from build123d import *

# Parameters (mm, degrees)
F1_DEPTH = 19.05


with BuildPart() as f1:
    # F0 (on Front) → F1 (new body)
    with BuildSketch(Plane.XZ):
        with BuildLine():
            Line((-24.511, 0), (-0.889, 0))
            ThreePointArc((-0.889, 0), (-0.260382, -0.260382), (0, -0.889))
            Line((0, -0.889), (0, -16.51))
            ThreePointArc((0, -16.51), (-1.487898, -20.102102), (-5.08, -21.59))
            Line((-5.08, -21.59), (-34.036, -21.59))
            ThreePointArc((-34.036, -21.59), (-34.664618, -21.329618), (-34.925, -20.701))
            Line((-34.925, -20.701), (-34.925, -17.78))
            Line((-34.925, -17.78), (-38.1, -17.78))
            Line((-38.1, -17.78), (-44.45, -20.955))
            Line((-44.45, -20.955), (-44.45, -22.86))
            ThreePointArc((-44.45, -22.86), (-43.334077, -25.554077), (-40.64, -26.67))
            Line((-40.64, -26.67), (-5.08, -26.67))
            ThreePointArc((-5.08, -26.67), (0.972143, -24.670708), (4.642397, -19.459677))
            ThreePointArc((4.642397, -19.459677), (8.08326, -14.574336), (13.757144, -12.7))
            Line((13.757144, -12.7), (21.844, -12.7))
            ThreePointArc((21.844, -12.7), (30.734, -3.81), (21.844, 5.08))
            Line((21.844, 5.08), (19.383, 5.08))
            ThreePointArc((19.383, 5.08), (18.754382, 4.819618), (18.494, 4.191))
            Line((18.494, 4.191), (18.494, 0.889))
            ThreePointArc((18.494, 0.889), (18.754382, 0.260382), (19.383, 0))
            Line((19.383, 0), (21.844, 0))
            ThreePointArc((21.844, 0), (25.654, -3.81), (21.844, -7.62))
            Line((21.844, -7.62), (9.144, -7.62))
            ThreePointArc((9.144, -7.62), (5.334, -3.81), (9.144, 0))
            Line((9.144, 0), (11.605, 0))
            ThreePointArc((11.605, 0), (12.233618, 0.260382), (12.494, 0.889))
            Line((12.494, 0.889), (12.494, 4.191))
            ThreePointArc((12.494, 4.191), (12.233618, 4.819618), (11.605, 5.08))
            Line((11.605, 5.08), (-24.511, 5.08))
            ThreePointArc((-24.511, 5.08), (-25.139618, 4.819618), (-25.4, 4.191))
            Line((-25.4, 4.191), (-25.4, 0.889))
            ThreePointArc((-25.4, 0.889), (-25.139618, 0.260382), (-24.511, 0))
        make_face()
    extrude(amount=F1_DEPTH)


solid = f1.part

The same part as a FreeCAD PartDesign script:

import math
import FreeCAD as App
import Part
import Sketcher
from FreeCAD import Vector
Q = App.Units.Quantity

doc = App.newDocument("Part")
body = doc.addObject("PartDesign::Body", "Body")

# Sketch on XZ plane
sketch1 = doc.addObject("Sketcher::SketchObject", "Sketch")
body.addObject(sketch1)
sketch1.AttachmentSupport = (doc.XZ_Plane, [""])
sketch1.MapMode = "FlatFace"
sketch1.addGeometry([
    Part.LineSegment(Vector(-24.5, 0, 0), Vector(-0.9, 0, 0)),  # 0
    Part.ArcOfCircle(Part.Circle(Vector(-0.9, -0.9, 0), Vector(0, 0, 1), 0.9), math.radians(0), math.radians(90)),  # 1
    Part.LineSegment(Vector(0, -0.9, 0), Vector(0, -16.5, 0)),  # 2
    Part.ArcOfCircle(Part.Circle(Vector(-5.1, -16.5, 0), Vector(0, 0, 1), 5.1), math.radians(-90), math.radians(0)),  # 3
    Part.LineSegment(Vector(-5.1, -21.6, 0), Vector(-34, -21.6, 0)),  # 4
    Part.ArcOfCircle(Part.Circle(Vector(-34, -20.7, 0), Vector(0, 0, 1), 0.9), math.radians(180), math.radians(270)),  # 5
    Part.LineSegment(Vector(-34.9, -20.7, 0), Vector(-34.9, -17.8, 0)),  # 6
    Part.LineSegment(Vector(-34.9, -17.8, 0), Vector(-38.1, -17.8, 0)),  # 7
    Part.LineSegment(Vector(-38.1, -17.8, 0), Vector(-44.5, -21, 0)),  # 8
    Part.LineSegment(Vector(-44.5, -21, 0), Vector(-44.5, -22.9, 0)),  # 9
    Part.ArcOfCircle(Part.Circle(Vector(-40.6, -22.9, 0), Vector(0, 0, 1), 3.8), math.radians(180), math.radians(270)),  # 10
    Part.LineSegment(Vector(-40.6, -26.7, 0), Vector(-5.1, -26.7, 0)),  # 11
    Part.ArcOfCircle(Part.Circle(Vector(-5.1, -16.5, 0), Vector(0, 0, 1), 10.2), math.radians(-90), math.radians(-17)),  # 12
    Part.ArcOfCircle(Part.Circle(Vector(13.8, -22.2, 0), Vector(0, 0, 1), 9.5), math.radians(90), math.radians(163)),  # 13
    Part.LineSegment(Vector(13.8, -12.7, 0), Vector(21.8, -12.7, 0)),  # 14
    Part.ArcOfCircle(Part.Circle(Vector(21.8, -3.8, 0), Vector(0, 0, 1), 8.9), math.radians(-90), math.radians(90)),  # 15
    Part.LineSegment(Vector(21.8, 5.1, 0), Vector(19.4, 5.1, 0)),  # 16
    Part.ArcOfCircle(Part.Circle(Vector(19.4, 4.2, 0), Vector(0, 0, 1), 0.9), math.radians(90), math.radians(180)),  # 17
    Part.LineSegment(Vector(18.5, 4.2, 0), Vector(18.5, 0.9, 0)),  # 18
    Part.ArcOfCircle(Part.Circle(Vector(19.4, 0.9, 0), Vector(0, 0, 1), 0.9), math.radians(180), math.radians(270)),  # 19
    Part.LineSegment(Vector(19.4, 0, 0), Vector(21.8, 0, 0)),  # 20
    Part.ArcOfCircle(Part.Circle(Vector(21.8, -3.8, 0), Vector(0, 0, 1), 3.8), math.radians(-90), math.radians(90)),  # 21
    Part.LineSegment(Vector(21.8, -7.6, 0), Vector(9.1, -7.6, 0)),  # 22
    Part.ArcOfCircle(Part.Circle(Vector(9.1, -3.8, 0), Vector(0, 0, 1), 3.8), math.radians(90), math.radians(270)),  # 23
    Part.LineSegment(Vector(9.1, 0, 0), Vector(11.6, 0, 0)),  # 24
    Part.ArcOfCircle(Part.Circle(Vector(11.6, 0.9, 0), Vector(0, 0, 1), 0.9), math.radians(-90), math.radians(0)),  # 25
    Part.LineSegment(Vector(12.5, 0.9, 0), Vector(12.5, 4.2, 0)),  # 26
    Part.ArcOfCircle(Part.Circle(Vector(11.6, 4.2, 0), Vector(0, 0, 1), 0.9), math.radians(0), math.radians(90)),  # 27
    Part.LineSegment(Vector(11.6, 5.1, 0), Vector(-24.5, 5.1, 0)),  # 28
    Part.ArcOfCircle(Part.Circle(Vector(-24.5, 4.2, 0), Vector(0, 0, 1), 0.9), math.radians(90), math.radians(180)),  # 29
    Part.LineSegment(Vector(-25.4, 4.2, 0), Vector(-25.4, 0.9, 0)),  # 30
    Part.ArcOfCircle(Part.Circle(Vector(-24.5, 0.9, 0), Vector(0, 0, 1), 0.9), math.radians(180), math.radians(270)),  # 31
], False)
sketch1.addConstraint([
    Sketcher.Constraint("Tangent", 0, 2, 1, 2),
    Sketcher.Constraint("Tangent", 1, 1, 2, 1),
    Sketcher.Constraint("Tangent", 2, 2, 3, 2),
    Sketcher.Constraint("Tangent", 3, 1, 4, 1),
    Sketcher.Constraint("Tangent", 4, 2, 5, 2),
    Sketcher.Constraint("Tangent", 5, 1, 6, 1),
    Sketcher.Constraint("Coincident", 6, 2, 7, 1),
    Sketcher.Constraint("Coincident", 7, 2, 8, 1),
    Sketcher.Constraint("Coincident", 8, 2, 9, 1),
    Sketcher.Constraint("Tangent", 9, 2, 10, 1),
    Sketcher.Constraint("Tangent", 10, 2, 11, 1),
    Sketcher.Constraint("Tangent", 11, 2, 12, 1),
    Sketcher.Constraint("Tangent", 12, 2, 13, 2),
    Sketcher.Constraint("Tangent", 13, 1, 14, 1),
    Sketcher.Constraint("Tangent", 14, 2, 15, 1),
    Sketcher.Constraint("Tangent", 15, 2, 16, 1),
    Sketcher.Constraint("Tangent", 16, 2, 17, 1),
    Sketcher.Constraint("Tangent", 17, 2, 18, 1),
    Sketcher.Constraint("Tangent", 18, 2, 19, 1),
    Sketcher.Constraint("Tangent", 19, 2, 20, 1),
    Sketcher.Constraint("Tangent", 20, 2, 21, 2),
    Sketcher.Constraint("Tangent", 21, 1, 22, 1),
    Sketcher.Constraint("Tangent", 22, 2, 23, 2),
    Sketcher.Constraint("Tangent", 23, 1, 24, 1),
    Sketcher.Constraint("Tangent", 24, 2, 25, 1),
    Sketcher.Constraint("Tangent", 25, 2, 26, 1),
    Sketcher.Constraint("Tangent", 26, 2, 27, 1),
    Sketcher.Constraint("Tangent", 27, 2, 28, 1),
    Sketcher.Constraint("Tangent", 28, 2, 29, 1),
    Sketcher.Constraint("Tangent", 29, 2, 30, 1),
    Sketcher.Constraint("Tangent", 30, 2, 31, 1),
    Sketcher.Constraint("Tangent", 31, 2, 0, 1),
    Sketcher.Constraint("Horizontal", 0),
    Sketcher.Constraint("Vertical", 2),
    Sketcher.Constraint("Horizontal", 4),
    Sketcher.Constraint("Vertical", 6),
    Sketcher.Constraint("Horizontal", 7),
    Sketcher.Constraint("Vertical", 9),
    Sketcher.Constraint("Horizontal", 11),
    Sketcher.Constraint("Horizontal", 14),
    Sketcher.Constraint("Horizontal", 16),
    Sketcher.Constraint("Vertical", 18),
    Sketcher.Constraint("Horizontal", 20),
    Sketcher.Constraint("Horizontal", 22),
    Sketcher.Constraint("Horizontal", 24),
    Sketcher.Constraint("Vertical", 26),
    Sketcher.Constraint("Horizontal", 28),
    Sketcher.Constraint("Vertical", 30),
    Sketcher.Constraint("Coincident", 12, 3, 3, 3),
    Sketcher.Constraint("Coincident", 21, 3, 15, 3),
    Sketcher.Constraint("Equal", 1, 5),
    Sketcher.Constraint("Equal", 5, 17),
    Sketcher.Constraint("Equal", 17, 19),
    Sketcher.Constraint("Equal", 10, 21),
    Sketcher.Constraint("Equal", 21, 23),
    Sketcher.Constraint("Equal", 19, 25),
    Sketcher.Constraint("Equal", 25, 27),
    Sketcher.Constraint("Equal", 27, 29),
    Sketcher.Constraint("Equal", 29, 31),
    Sketcher.Constraint("PointOnObject", 0, 2, -1),
    Sketcher.Constraint("PointOnObject", 1, 1, -2),
    Sketcher.Constraint("PointOnObject", 19, 2, -1),
    Sketcher.Constraint("Horizontal", 17, 3, 27, 3),
    Sketcher.Constraint("Equal", 20, 24),
    Sketcher.Constraint("Radius", 3, Q("0.2000001 in")),
    Sketcher.Constraint("Radius", 12, Q("0.4000001 in")),
    Sketcher.Constraint("Radius", 10, Q("0.15 in")),
    Sketcher.Constraint("Radius", 15, Q("0.35 in")),
    Sketcher.Constraint("DistanceX", 11, 1, 11, 2, Q("1.4 in")),
    Sketcher.Constraint("DistanceX", 22, 2, 22, 1, Q("0.5 in")),
    Sketcher.Constraint("DistanceX", 29, 2, -1, 1, Q("1 in")),
    Sketcher.Constraint("Radius", 1, Q("0.035 in")),
    Sketcher.Constraint("Radius", 13, Q("0.375 in")),
    Sketcher.Constraint("DistanceX", 4, 2, 4, 1, Q("1.14 in")),
    Sketcher.Constraint("DistanceY", 10, 3, -1, 1, Q("0.9 in")),
    Sketcher.Constraint("DistanceY", 6, 2, -1, 1, Q("0.7 in")),
    Sketcher.Constraint("DistanceX", 7, 2, -1, 1, Q("1.5 in")),
    Sketcher.Constraint("DistanceX", 5, 3, 15, 3, Q("2.2 in")),
    Sketcher.Constraint("DistanceY", 9, 2, 9, 1, Q("0.075 in")),
    Sketcher.Constraint("DistanceX", 16, 2, 16, 1, Q("2.461 mm")),
])
pad1 = doc.addObject("PartDesign::Pad", "Pad")
body.addObject(pad1)
pad1.Profile = sketch1
pad1.Length = Q("0.75 in")

doc.recompute()
